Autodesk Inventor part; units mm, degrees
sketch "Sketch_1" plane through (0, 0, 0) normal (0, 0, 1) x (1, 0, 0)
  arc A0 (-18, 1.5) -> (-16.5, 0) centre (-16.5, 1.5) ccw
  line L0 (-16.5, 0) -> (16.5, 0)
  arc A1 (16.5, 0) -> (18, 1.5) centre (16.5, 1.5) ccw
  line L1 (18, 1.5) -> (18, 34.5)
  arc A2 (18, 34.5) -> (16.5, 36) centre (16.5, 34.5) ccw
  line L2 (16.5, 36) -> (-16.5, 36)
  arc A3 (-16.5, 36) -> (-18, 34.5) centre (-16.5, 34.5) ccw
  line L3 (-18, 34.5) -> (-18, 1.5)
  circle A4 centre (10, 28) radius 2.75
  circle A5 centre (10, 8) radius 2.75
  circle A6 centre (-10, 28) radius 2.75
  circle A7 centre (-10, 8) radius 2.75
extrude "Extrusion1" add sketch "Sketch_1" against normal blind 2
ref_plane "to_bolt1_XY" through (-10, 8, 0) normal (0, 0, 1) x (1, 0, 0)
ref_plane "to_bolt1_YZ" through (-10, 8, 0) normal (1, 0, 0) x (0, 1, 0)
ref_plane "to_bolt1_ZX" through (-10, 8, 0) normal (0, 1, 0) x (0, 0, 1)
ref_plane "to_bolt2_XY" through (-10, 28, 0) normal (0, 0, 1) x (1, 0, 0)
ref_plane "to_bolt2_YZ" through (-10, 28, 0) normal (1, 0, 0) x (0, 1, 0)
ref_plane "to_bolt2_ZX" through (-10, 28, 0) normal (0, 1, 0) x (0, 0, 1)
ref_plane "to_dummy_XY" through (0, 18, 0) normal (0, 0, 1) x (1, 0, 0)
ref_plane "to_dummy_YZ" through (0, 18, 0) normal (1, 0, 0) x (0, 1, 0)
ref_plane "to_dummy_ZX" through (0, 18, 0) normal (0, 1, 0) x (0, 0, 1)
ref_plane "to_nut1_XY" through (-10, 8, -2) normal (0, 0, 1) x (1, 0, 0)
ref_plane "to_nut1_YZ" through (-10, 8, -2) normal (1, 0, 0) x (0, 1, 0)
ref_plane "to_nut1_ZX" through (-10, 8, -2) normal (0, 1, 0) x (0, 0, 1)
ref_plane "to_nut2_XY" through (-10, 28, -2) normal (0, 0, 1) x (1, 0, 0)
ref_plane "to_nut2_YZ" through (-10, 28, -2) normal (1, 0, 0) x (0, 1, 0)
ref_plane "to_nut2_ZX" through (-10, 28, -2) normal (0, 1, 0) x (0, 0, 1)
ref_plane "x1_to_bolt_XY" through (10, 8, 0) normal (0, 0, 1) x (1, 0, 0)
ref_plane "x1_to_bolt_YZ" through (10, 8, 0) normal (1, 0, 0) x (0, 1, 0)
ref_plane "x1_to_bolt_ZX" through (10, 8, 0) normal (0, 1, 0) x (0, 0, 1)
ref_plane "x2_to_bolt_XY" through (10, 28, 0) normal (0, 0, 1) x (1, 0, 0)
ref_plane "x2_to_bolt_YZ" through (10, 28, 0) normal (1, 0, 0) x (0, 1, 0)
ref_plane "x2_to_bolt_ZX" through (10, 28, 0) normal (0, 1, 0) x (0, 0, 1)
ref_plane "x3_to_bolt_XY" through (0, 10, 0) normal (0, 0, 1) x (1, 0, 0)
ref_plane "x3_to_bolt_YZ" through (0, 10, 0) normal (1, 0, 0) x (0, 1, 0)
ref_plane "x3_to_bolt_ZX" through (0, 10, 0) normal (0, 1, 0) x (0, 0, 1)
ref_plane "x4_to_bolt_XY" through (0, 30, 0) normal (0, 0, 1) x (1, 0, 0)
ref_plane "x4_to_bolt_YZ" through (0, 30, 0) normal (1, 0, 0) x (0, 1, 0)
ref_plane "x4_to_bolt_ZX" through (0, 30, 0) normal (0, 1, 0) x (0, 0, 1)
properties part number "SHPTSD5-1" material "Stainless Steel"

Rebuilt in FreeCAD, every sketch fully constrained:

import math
import FreeCAD as App
import Part
import Sketcher

doc = App.newDocument("Part")
body = doc.addObject("PartDesign::Body", "Body")

# Sketch on XY plane
sketch1 = body.newObject("Sketcher::SketchObject", "Sketch")
sketch1.AttachmentSupport = (doc.getObject("XY_Plane"), [""])
sketch1.MapMode = "FlatFace"
sketch1.addGeometry([
    Part.LineSegment(App.Vector(-18, 34.5, 0), App.Vector(-18, 1.5, 0)),  # 0
    Part.ArcOfCircle(Part.Circle(App.Vector(-16.5, 1.5, 0), App.Vector(0, 0, 1), 1.5), math.radians(180), math.radians(270)),  # 1
    Part.LineSegment(App.Vector(-16.5, 0, 0), App.Vector(16.5, 0, 0)),  # 2
    Part.ArcOfCircle(Part.Circle(App.Vector(16.5, 1.5, 0), App.Vector(0, 0, 1), 1.5), math.radians(-90), math.radians(0)),  # 3
    Part.LineSegment(App.Vector(18, 1.5, 0), App.Vector(18, 34.5, 0)),  # 4
    Part.ArcOfCircle(Part.Circle(App.Vector(16.5, 34.5, 0), App.Vector(0, 0, 1), 1.5), math.radians(0), math.radians(90)),  # 5
    Part.LineSegment(App.Vector(16.5, 36, 0), App.Vector(-16.5, 36, 0)),  # 6
    Part.ArcOfCircle(Part.Circle(App.Vector(-16.5, 34.5, 0), App.Vector(0, 0, 1), 1.5), math.radians(90), math.radians(180)),  # 7
    Part.Circle(App.Vector(-10, 8, 0), App.Vector(0, 0, 1), 2.75),  # 8
    Part.Circle(App.Vector(10, 8, 0), App.Vector(0, 0, 1), 2.75),  # 9
    Part.Circle(App.Vector(-10, 28, 0), App.Vector(0, 0, 1), 2.75),  # 10
    Part.Circle(App.Vector(10, 28, 0), App.Vector(0, 0, 1), 2.75),  # 11
], False)
sketch1.addConstraint([
    Sketcher.Constraint("Tangent", 0, 2, 1, 1),
    Sketcher.Constraint("Tangent", 1, 2, 2, 1),
    Sketcher.Constraint("Tangent", 2, 2, 3, 1),
    Sketcher.Constraint("Tangent", 3, 2, 4, 1),
    Sketcher.Constraint("Tangent", 4, 2, 5, 1),
    Sketcher.Constraint("Tangent", 5, 2, 6, 1),
    Sketcher.Constraint("Tangent", 6, 2, 7, 1),
    Sketcher.Constraint("Tangent", 7, 2, 0, 1),
    Sketcher.Constraint("Vertical", 0),
    Sketcher.Constraint("Horizontal", 2),
    Sketcher.Constraint("Vertical", 4),
    Sketcher.Constraint("Horizontal", 6),
    Sketcher.Constraint("Equal", 1, 3),
    Sketcher.Constraint("Equal", 3, 5),
    Sketcher.Constraint("Equal", 5, 7),
    Sketcher.Constraint("Equal", 8, 9),
    Sketcher.Constraint("Equal", 9, 10),
    Sketcher.Constraint("Equal", 10, 11),
    Sketcher.Constraint("Symmetric", 1, 2, 2, 2, -1, 1),
    Sketcher.Constraint("Symmetric", 8, 3, 9, 3, -2),
    Sketcher.Constraint("Symmetric", 10, 3, 11, 3, -2),
    Sketcher.Constraint("Vertical", 8, 3, 10, 3),
    Sketcher.Constraint("Equal", 6, 0),
    Sketcher.Constraint("Diameter", 8, 5.5),
    Sketcher.Constraint("Radius", 1, 1.5),
    Sketcher.Constraint("DistanceX", 2, 1, 2, 2, 33.0),
    Sketcher.Constraint("DistanceX", 8, 3, -1, 1, 10.0),
    Sketcher.Constraint("DistanceY", -1, 1, 8, 3, 8.0),
    Sketcher.Constraint("DistanceY", -1, 1, 10, 3, 28.0),
])
pad1 = body.newObject("PartDesign::Pad", "Pad")
pad1.Profile = sketch1
pad1.Length = 2
pad1.Reversed = True

doc.recompute()
